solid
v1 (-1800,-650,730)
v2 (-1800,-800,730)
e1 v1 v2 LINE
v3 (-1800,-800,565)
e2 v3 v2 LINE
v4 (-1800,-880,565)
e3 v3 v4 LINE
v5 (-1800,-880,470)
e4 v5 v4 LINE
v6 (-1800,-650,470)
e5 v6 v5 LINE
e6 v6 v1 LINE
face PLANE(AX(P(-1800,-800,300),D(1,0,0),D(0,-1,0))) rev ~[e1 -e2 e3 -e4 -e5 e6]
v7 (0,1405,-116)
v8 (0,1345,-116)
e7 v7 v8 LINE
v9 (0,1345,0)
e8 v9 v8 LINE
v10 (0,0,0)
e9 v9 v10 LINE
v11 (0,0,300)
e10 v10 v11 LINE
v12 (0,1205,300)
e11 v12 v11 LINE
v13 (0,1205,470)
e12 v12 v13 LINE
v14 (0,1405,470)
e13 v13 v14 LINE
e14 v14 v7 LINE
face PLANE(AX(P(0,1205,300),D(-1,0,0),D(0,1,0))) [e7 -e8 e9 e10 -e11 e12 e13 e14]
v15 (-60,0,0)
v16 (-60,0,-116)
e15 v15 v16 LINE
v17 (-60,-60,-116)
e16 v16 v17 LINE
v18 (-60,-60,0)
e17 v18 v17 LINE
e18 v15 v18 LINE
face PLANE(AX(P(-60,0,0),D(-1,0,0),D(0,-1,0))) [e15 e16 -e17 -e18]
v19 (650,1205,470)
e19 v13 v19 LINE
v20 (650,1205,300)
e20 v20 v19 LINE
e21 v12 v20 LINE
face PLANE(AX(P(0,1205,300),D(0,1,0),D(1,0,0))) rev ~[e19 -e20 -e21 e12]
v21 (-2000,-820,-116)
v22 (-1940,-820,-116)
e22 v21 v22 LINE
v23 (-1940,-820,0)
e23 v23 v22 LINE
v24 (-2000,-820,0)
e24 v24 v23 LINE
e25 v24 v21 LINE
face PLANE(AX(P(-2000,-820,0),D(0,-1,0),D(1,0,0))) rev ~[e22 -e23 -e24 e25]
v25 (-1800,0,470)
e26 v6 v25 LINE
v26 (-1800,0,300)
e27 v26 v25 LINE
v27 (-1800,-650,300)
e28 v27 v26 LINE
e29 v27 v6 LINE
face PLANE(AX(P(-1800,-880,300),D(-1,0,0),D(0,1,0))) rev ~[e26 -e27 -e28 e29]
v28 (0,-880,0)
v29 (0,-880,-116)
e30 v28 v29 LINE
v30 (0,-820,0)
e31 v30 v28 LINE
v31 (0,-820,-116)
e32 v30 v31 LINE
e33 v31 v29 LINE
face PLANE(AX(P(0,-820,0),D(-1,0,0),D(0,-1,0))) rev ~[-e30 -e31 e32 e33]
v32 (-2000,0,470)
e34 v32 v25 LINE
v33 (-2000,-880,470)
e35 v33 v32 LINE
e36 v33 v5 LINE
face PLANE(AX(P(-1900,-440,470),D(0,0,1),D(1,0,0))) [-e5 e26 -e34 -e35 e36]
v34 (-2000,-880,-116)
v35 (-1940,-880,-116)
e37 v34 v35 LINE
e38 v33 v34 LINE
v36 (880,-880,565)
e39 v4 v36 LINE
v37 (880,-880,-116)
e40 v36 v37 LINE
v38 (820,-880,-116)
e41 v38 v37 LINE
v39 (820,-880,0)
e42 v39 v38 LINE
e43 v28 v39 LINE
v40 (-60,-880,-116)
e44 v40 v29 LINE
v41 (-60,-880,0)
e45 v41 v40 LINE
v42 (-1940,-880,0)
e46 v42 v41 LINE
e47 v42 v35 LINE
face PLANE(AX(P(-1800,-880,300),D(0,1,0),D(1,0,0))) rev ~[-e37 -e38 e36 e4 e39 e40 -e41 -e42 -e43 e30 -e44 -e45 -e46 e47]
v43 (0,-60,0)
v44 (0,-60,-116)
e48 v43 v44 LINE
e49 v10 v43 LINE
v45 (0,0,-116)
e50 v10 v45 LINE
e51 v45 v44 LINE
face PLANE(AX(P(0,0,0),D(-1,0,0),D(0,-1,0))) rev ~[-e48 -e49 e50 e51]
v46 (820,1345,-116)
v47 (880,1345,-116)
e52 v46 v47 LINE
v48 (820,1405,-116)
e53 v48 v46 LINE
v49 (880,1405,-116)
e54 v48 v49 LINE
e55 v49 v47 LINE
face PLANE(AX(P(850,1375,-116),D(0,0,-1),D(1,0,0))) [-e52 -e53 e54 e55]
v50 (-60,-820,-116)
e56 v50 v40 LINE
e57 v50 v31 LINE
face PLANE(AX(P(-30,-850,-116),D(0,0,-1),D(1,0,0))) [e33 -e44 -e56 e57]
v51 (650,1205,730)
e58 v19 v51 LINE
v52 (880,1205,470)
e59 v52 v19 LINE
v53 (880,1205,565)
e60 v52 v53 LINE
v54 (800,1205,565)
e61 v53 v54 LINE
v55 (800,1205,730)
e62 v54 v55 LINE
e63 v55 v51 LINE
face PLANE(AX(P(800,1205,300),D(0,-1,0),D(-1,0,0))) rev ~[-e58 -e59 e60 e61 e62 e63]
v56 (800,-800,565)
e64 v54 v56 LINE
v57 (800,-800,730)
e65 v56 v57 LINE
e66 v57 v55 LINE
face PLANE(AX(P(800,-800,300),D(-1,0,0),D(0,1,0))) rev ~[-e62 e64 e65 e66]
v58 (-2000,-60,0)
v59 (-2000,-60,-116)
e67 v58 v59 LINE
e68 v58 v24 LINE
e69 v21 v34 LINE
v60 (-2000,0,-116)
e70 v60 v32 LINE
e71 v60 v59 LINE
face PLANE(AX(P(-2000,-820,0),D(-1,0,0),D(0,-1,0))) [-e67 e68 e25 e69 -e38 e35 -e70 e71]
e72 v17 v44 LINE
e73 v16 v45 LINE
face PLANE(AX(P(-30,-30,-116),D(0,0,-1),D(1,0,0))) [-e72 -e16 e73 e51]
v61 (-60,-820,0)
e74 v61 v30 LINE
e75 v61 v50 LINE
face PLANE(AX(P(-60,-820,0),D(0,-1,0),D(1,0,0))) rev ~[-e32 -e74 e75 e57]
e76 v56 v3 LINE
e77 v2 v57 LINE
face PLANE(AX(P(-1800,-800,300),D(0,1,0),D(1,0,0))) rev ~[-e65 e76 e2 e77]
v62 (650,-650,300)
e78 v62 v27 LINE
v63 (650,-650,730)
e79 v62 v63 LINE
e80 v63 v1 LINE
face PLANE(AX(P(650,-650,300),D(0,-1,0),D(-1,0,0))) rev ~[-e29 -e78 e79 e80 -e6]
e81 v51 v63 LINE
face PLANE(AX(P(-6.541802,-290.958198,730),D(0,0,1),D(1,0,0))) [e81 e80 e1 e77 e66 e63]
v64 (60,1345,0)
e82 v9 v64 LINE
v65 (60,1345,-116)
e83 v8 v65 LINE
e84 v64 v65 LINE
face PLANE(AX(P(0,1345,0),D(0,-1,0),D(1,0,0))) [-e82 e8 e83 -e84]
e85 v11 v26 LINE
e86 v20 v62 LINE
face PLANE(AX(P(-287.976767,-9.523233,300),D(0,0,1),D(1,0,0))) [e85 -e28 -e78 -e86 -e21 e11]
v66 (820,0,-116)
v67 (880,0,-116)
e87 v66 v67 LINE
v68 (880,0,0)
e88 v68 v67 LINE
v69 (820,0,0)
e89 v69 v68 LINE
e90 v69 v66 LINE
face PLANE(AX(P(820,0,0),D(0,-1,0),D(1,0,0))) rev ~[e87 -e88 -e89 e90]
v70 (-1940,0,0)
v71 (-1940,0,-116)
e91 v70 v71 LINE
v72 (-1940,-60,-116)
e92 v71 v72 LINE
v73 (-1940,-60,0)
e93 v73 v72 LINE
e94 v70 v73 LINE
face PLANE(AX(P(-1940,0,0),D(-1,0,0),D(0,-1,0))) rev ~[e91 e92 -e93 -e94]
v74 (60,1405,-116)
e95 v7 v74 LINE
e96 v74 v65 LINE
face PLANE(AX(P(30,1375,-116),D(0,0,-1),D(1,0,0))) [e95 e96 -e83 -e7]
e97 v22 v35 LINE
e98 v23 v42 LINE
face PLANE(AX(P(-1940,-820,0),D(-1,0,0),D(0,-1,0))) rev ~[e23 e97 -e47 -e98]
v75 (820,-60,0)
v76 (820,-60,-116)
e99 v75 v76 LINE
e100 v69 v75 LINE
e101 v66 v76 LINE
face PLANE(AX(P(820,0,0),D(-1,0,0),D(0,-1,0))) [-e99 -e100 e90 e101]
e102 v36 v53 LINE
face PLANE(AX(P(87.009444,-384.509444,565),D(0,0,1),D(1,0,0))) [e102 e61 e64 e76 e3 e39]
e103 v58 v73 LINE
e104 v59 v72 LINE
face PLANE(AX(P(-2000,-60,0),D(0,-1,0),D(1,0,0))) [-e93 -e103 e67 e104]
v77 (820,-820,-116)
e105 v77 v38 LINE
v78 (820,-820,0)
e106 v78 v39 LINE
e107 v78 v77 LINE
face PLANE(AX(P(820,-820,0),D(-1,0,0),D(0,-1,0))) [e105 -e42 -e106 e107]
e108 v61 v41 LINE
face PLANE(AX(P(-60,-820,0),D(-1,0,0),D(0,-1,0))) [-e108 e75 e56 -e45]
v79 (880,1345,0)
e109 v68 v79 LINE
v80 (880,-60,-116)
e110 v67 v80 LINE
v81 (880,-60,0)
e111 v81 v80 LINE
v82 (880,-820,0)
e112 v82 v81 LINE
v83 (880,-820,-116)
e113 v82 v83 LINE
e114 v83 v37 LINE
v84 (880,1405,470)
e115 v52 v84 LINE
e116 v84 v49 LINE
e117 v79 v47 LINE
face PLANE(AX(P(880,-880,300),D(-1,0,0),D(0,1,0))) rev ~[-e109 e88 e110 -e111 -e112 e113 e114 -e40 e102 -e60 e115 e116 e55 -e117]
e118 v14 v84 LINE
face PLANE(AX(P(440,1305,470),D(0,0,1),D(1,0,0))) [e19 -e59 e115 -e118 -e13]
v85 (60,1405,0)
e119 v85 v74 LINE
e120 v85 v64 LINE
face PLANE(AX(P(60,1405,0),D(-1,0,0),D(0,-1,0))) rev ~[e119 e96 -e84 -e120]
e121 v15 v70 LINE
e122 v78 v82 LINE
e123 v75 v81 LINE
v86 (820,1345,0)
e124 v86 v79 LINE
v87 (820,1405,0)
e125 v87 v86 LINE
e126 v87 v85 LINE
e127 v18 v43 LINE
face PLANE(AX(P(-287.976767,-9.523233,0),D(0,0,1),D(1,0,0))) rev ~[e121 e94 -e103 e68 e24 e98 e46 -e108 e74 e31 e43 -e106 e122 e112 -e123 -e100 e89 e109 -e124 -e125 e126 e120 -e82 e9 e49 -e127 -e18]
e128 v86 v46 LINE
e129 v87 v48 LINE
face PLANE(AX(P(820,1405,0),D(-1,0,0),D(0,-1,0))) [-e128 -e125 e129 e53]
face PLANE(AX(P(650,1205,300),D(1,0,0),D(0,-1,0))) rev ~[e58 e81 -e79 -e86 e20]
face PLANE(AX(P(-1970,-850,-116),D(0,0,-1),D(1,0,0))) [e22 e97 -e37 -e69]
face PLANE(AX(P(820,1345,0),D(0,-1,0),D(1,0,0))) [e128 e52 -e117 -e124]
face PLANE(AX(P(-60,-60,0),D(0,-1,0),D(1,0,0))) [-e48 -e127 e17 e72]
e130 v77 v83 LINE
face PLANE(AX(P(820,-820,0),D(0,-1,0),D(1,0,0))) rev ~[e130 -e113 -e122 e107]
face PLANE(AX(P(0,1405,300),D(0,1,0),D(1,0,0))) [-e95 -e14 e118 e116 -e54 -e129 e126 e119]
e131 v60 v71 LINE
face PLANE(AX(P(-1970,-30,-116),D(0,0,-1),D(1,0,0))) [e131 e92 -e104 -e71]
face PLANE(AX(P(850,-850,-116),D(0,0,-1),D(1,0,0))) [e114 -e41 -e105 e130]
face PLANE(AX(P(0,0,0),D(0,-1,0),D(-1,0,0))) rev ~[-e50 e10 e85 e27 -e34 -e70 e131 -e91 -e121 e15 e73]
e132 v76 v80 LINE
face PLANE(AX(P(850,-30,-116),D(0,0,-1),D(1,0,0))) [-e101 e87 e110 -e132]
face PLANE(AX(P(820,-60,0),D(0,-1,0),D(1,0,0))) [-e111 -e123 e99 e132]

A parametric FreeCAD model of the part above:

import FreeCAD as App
import Part
import Sketcher
from FreeCAD import Vector
Q = App.Units.Quantity


def add_polygon(sketch, points):
    """Adds a closed chain of lines whose ends are joined by coincident constraints."""
    first, n = sketch.GeometryCount, len(points)
    for a, b in zip(points, points[1:] + points[:1]):
        sketch.addGeometry(Part.LineSegment(App.Vector(*a, 0), App.Vector(*b, 0)), False)
    for i in range(n):
        sketch.addConstraint(Sketcher.Constraint("Coincident", first + i, 2, first + (i + 1) % n, 1))

doc = App.newDocument("Part")
body = doc.addObject("PartDesign::Body", "Body")

sketch1 = body.newObject("Sketcher::SketchObject", "Sketch")
sketch1.AttachmentSupport = (doc.getObject("XY_Plane"), [""])
sketch1.MapMode = "FlatFace"
add_polygon(sketch1, [(0, 1405), (0, 0), (-2000, 0), (-2000, -880), (880, -880), (880, 1405)])
sketch1.addConstraint([
    Sketcher.Constraint("Vertical", 0),
    Sketcher.Constraint("Horizontal", 1),
    Sketcher.Constraint("Vertical", 2),
    Sketcher.Constraint("Horizontal", 3),
    Sketcher.Constraint("Vertical", 4),
    Sketcher.Constraint("Horizontal", 5),
    Sketcher.Constraint("Coincident", 0, 2, -1, 1),
    Sketcher.Constraint("Equal", 5, 2),
    Sketcher.Constraint("DistanceX", 1, 2, 1, 1, Q("2000 mm")),
    Sketcher.Constraint("DistanceX", 3, 1, 3, 2, Q("2880 mm")),
    Sketcher.Constraint("DistanceY", 0, 2, 0, 1, Q("1405 mm")),
])
pad1 = body.newObject("PartDesign::Pad", "Pad")
pad1.Profile = sketch1
pad1.Length = 300

sketch2 = body.newObject("Sketcher::SketchObject", "Sketch001")
sketch2.AttachmentSupport = (doc.getObject("XY_Plane"), [""])
sketch2.MapMode = "FlatFace"
add_polygon(sketch2, [(-2000, -880), (-2000, -820), (-1940, -820), (-1940, -880)])
add_polygon(sketch2, [(-2000, -60), (-2000, 0), (-1940, 0), (-1940, -60)])
add_polygon(sketch2, [(-60, -60), (-60, 0), (0, 0), (0, -60)])
add_polygon(sketch2, [(-60, -880), (-60, -820), (0, -820), (0, -880)])
add_polygon(sketch2, [(820, -880), (820, -820), (880, -820), (880, -880)])
add_polygon(sketch2, [(820, -60), (820, 0), (880, 0), (880, -60)])
add_polygon(sketch2, [(0, 1345), (0, 1405), (60, 1405), (60, 1345)])
add_polygon(sketch2, [(820, 1345), (820, 1405), (880, 1405), (880, 1345)])
sketch2.addConstraint([
    Sketcher.Constraint("Vertical", 0),
    Sketcher.Constraint("Horizontal", 1),
    Sketcher.Constraint("Vertical", 2),
    Sketcher.Constraint("Horizontal", 3),
    Sketcher.Constraint("Vertical", 4),
    Sketcher.Constraint("Horizontal", 5),
    Sketcher.Constraint("Vertical", 6),
    Sketcher.Constraint("Horizontal", 7),
    Sketcher.Constraint("Vertical", 8),
    Sketcher.Constraint("Horizontal", 9),
    Sketcher.Constraint("Vertical", 10),
    Sketcher.Constraint("Horizontal", 11),
    Sketcher.Constraint("Vertical", 12),
    Sketcher.Constraint("Horizontal", 13),
    Sketcher.Constraint("Vertical", 14),
    Sketcher.Constraint("Horizontal", 15),
    Sketcher.Constraint("Vertical", 16),
    Sketcher.Constraint("Horizontal", 17),
    Sketcher.Constraint("Vertical", 18),
    Sketcher.Constraint("Horizontal", 19),
    Sketcher.Constraint("Vertical", 20),
    Sketcher.Constraint("Horizontal", 21),
    Sketcher.Constraint("Vertical", 22),
    Sketcher.Constraint("Horizontal", 23),
    Sketcher.Constraint("Vertical", 24),
    Sketcher.Constraint("Horizontal", 25),
    Sketcher.Constraint("Vertical", 26),
    Sketcher.Constraint("Horizontal", 27),
    Sketcher.Constraint("Vertical", 28),
    Sketcher.Constraint("Horizontal", 29),
    Sketcher.Constraint("Vertical", 30),
    Sketcher.Constraint("Horizontal", 31),
    Sketcher.Constraint("Coincident", 9, 2, -1, 1),
    Sketcher.Constraint("PointOnObject", 4, 2, -1),
    Sketcher.Constraint("PointOnObject", 13, 2, -2),
    Sketcher.Constraint("PointOnObject", 20, 2, -1),
    Sketcher.Constraint("PointOnObject", 24, 2, -2),
    Sketcher.Constraint("Horizontal", 7, 2, 10, 2),
    Sketcher.Constraint("Horizontal", 1, 2, 12, 2),
    Sketcher.Constraint("Horizontal", 3, 2, 14, 2),
    Sketcher.Constraint("Horizontal", 13, 2, 16, 2),
    Sketcher.Constraint("Horizontal", 15, 2, 18, 2),
    Sketcher.Constraint("Horizontal", 11, 2, 22, 2),
    Sketcher.Constraint("Horizontal", 25, 2, 28, 2),
    Sketcher.Constraint("Horizontal", 27, 2, 30, 2),
    Sketcher.Constraint("Vertical", 3, 2, 4, 2),
    Sketcher.Constraint("Vertical", 2, 2, 5, 2),
    Sketcher.Constraint("Vertical", 11, 2, 12, 2),
    Sketcher.Constraint("Vertical", 19, 2, 20, 2),
    Sketcher.Constraint("Vertical", 18, 2, 21, 2),
    Sketcher.Constraint("Vertical", 23, 2, 28, 2),
    Sketcher.Constraint("Vertical", 22, 2, 29, 2),
    Sketcher.Constraint("Equal", 7, 9),
    Sketcher.Constraint("Equal", 15, 17),
    Sketcher.Constraint("Equal", 23, 25),
    Sketcher.Constraint("Equal", 31, 0),
    Sketcher.Constraint("Equal", 2, 4),
    Sketcher.Constraint("Equal", 22, 24),
    Sketcher.Constraint("DistanceX", 1, 1, 1, 2, Q("60 mm")),
    Sketcher.Constraint("DistanceX", 0, 2, -1, 1, Q("2000 mm")),
    Sketcher.Constraint("DistanceY", 0, 2, -1, 1, Q("820 mm")),
    Sketcher.Constraint("DistanceX", -1, 1, 16, 2, Q("820 mm")),
    Sketcher.Constraint("DistanceY", -1, 1, 24, 2, Q("1405 mm")),
])
pad2 = body.newObject("PartDesign::Pad", "Pad001")
pad2.Profile = sketch2
pad2.Length = 116
pad2.Reversed = True

sketch3 = body.newObject("Sketcher::SketchObject", "Sketch002")
sketch3.AttachmentSupport = (doc.getObject("XY_Plane"), [""])
sketch3.MapMode = "FlatFace"
sketch3.AttachmentOffset = App.Placement(Vector(0, 0, 300), App.Rotation())
add_polygon(sketch3, [(0, 1405), (0, 1205), (880, 1205), (880, 1405)])
add_polygon(sketch3, [(-2000, 0), (-2000, -880), (-1800, -880), (-1800, 0)])
sketch3.addConstraint([
    Sketcher.Constraint("Vertical", 0),
    Sketcher.Constraint("Horizontal", 1),
    Sketcher.Constraint("Vertical", 2),
    Sketcher.Constraint("Horizontal", 3),
    Sketcher.Constraint("Vertical", 4),
    Sketcher.Constraint("Horizontal", 5),
    Sketcher.Constraint("Vertical", 6),
    Sketcher.Constraint("Horizontal", 7),
    Sketcher.Constraint("PointOnObject", 0, 2, -2),
    Sketcher.Constraint("PointOnObject", 6, 2, -1),
    Sketcher.Constraint("Equal", 7, 0),
    Sketcher.Constraint("Equal", 3, 4),
    Sketcher.Constraint("DistanceX", 1, 1, 1, 2, Q("880 mm")),
    Sketcher.Constraint("DistanceX", 5, 1, 5, 2, Q("200 mm")),
    Sketcher.Constraint("DistanceY", -1, 1, 0, 2, Q("1205 mm")),
    Sketcher.Constraint("DistanceX", 4, 2, -1, 1, Q("2000 mm")),
])
pad3 = body.newObject("PartDesign::Pad", "Pad002")
pad3.Profile = sketch3
pad3.Length = 170

sketch4 = body.newObject("Sketcher::SketchObject", "Sketch003")
sketch4.AttachmentSupport = (doc.getObject("XY_Plane"), [""])
sketch4.MapMode = "FlatFace"
sketch4.AttachmentOffset = App.Placement(Vector(0, 0, 300), App.Rotation())
add_polygon(sketch4, [(880, -880), (880, 1205), (800, 1205), (800, -800), (-1800, -800), (-1800, -880)])
sketch4.addConstraint([
    Sketcher.Constraint("Vertical", 0),
    Sketcher.Constraint("Horizontal", 1),
    Sketcher.Constraint("Vertical", 2),
    Sketcher.Constraint("Horizontal", 3),
    Sketcher.Constraint("Vertical", 4),
    Sketcher.Constraint("Horizontal", 5),
    Sketcher.Constraint("Equal", 1, 4),
    Sketcher.Constraint("DistanceX", 1, 2, 1, 1, Q("80 mm")),
    Sketcher.Constraint("DistanceX", 3, 2, 3, 1, Q("2600 mm")),
    Sketcher.Constraint("DistanceY", 0, 1, 0, 2, Q("2085 mm")),
    Sketcher.Constraint("DistanceX", -1, 1, 0, 2, Q("880 mm")),
    Sketcher.Constraint("DistanceY", -1, 1, 0, 2, Q("1205 mm")),
])
pad4 = body.newObject("PartDesign::Pad", "Pad003")
pad4.Profile = sketch4
pad4.Length = 265

sketch5 = body.newObject("Sketcher::SketchObject", "Sketch004")
sketch5.AttachmentSupport = (doc.getObject("XY_Plane"), [""])
sketch5.MapMode = "FlatFace"
sketch5.AttachmentOffset = App.Placement(Vector(0, 0, 300), App.Rotation())
add_polygon(sketch5, [(800, -800), (800, 1205), (650, 1205), (650, -650), (-1800, -650), (-1800, -800)])
sketch5.addConstraint([
    Sketcher.Constraint("Vertical", 0),
    Sketcher.Constraint("Horizontal", 1),
    Sketcher.Constraint("Vertical", 2),
    Sketcher.Constraint("Horizontal", 3),
    Sketcher.Constraint("Vertical", 4),
    Sketcher.Constraint("Horizontal", 5),
    Sketcher.Constraint("Equal", 1, 4),
    Sketcher.Constraint("DistanceX", 1, 2, 1, 1, Q("150 mm")),
    Sketcher.Constraint("DistanceX", 3, 2, 3, 1, Q("2450 mm")),
    Sketcher.Constraint("DistanceY", 0, 1, 0, 2, Q("2005 mm")),
    Sketcher.Constraint("DistanceX", -1, 1, 0, 2, Q("800 mm")),
    Sketcher.Constraint("DistanceY", -1, 1, 0, 2, Q("1205 mm")),
])
pad5 = body.newObject("PartDesign::Pad", "Pad004")
pad5.Profile = sketch5
pad5.Length = 430

doc.recompute()
